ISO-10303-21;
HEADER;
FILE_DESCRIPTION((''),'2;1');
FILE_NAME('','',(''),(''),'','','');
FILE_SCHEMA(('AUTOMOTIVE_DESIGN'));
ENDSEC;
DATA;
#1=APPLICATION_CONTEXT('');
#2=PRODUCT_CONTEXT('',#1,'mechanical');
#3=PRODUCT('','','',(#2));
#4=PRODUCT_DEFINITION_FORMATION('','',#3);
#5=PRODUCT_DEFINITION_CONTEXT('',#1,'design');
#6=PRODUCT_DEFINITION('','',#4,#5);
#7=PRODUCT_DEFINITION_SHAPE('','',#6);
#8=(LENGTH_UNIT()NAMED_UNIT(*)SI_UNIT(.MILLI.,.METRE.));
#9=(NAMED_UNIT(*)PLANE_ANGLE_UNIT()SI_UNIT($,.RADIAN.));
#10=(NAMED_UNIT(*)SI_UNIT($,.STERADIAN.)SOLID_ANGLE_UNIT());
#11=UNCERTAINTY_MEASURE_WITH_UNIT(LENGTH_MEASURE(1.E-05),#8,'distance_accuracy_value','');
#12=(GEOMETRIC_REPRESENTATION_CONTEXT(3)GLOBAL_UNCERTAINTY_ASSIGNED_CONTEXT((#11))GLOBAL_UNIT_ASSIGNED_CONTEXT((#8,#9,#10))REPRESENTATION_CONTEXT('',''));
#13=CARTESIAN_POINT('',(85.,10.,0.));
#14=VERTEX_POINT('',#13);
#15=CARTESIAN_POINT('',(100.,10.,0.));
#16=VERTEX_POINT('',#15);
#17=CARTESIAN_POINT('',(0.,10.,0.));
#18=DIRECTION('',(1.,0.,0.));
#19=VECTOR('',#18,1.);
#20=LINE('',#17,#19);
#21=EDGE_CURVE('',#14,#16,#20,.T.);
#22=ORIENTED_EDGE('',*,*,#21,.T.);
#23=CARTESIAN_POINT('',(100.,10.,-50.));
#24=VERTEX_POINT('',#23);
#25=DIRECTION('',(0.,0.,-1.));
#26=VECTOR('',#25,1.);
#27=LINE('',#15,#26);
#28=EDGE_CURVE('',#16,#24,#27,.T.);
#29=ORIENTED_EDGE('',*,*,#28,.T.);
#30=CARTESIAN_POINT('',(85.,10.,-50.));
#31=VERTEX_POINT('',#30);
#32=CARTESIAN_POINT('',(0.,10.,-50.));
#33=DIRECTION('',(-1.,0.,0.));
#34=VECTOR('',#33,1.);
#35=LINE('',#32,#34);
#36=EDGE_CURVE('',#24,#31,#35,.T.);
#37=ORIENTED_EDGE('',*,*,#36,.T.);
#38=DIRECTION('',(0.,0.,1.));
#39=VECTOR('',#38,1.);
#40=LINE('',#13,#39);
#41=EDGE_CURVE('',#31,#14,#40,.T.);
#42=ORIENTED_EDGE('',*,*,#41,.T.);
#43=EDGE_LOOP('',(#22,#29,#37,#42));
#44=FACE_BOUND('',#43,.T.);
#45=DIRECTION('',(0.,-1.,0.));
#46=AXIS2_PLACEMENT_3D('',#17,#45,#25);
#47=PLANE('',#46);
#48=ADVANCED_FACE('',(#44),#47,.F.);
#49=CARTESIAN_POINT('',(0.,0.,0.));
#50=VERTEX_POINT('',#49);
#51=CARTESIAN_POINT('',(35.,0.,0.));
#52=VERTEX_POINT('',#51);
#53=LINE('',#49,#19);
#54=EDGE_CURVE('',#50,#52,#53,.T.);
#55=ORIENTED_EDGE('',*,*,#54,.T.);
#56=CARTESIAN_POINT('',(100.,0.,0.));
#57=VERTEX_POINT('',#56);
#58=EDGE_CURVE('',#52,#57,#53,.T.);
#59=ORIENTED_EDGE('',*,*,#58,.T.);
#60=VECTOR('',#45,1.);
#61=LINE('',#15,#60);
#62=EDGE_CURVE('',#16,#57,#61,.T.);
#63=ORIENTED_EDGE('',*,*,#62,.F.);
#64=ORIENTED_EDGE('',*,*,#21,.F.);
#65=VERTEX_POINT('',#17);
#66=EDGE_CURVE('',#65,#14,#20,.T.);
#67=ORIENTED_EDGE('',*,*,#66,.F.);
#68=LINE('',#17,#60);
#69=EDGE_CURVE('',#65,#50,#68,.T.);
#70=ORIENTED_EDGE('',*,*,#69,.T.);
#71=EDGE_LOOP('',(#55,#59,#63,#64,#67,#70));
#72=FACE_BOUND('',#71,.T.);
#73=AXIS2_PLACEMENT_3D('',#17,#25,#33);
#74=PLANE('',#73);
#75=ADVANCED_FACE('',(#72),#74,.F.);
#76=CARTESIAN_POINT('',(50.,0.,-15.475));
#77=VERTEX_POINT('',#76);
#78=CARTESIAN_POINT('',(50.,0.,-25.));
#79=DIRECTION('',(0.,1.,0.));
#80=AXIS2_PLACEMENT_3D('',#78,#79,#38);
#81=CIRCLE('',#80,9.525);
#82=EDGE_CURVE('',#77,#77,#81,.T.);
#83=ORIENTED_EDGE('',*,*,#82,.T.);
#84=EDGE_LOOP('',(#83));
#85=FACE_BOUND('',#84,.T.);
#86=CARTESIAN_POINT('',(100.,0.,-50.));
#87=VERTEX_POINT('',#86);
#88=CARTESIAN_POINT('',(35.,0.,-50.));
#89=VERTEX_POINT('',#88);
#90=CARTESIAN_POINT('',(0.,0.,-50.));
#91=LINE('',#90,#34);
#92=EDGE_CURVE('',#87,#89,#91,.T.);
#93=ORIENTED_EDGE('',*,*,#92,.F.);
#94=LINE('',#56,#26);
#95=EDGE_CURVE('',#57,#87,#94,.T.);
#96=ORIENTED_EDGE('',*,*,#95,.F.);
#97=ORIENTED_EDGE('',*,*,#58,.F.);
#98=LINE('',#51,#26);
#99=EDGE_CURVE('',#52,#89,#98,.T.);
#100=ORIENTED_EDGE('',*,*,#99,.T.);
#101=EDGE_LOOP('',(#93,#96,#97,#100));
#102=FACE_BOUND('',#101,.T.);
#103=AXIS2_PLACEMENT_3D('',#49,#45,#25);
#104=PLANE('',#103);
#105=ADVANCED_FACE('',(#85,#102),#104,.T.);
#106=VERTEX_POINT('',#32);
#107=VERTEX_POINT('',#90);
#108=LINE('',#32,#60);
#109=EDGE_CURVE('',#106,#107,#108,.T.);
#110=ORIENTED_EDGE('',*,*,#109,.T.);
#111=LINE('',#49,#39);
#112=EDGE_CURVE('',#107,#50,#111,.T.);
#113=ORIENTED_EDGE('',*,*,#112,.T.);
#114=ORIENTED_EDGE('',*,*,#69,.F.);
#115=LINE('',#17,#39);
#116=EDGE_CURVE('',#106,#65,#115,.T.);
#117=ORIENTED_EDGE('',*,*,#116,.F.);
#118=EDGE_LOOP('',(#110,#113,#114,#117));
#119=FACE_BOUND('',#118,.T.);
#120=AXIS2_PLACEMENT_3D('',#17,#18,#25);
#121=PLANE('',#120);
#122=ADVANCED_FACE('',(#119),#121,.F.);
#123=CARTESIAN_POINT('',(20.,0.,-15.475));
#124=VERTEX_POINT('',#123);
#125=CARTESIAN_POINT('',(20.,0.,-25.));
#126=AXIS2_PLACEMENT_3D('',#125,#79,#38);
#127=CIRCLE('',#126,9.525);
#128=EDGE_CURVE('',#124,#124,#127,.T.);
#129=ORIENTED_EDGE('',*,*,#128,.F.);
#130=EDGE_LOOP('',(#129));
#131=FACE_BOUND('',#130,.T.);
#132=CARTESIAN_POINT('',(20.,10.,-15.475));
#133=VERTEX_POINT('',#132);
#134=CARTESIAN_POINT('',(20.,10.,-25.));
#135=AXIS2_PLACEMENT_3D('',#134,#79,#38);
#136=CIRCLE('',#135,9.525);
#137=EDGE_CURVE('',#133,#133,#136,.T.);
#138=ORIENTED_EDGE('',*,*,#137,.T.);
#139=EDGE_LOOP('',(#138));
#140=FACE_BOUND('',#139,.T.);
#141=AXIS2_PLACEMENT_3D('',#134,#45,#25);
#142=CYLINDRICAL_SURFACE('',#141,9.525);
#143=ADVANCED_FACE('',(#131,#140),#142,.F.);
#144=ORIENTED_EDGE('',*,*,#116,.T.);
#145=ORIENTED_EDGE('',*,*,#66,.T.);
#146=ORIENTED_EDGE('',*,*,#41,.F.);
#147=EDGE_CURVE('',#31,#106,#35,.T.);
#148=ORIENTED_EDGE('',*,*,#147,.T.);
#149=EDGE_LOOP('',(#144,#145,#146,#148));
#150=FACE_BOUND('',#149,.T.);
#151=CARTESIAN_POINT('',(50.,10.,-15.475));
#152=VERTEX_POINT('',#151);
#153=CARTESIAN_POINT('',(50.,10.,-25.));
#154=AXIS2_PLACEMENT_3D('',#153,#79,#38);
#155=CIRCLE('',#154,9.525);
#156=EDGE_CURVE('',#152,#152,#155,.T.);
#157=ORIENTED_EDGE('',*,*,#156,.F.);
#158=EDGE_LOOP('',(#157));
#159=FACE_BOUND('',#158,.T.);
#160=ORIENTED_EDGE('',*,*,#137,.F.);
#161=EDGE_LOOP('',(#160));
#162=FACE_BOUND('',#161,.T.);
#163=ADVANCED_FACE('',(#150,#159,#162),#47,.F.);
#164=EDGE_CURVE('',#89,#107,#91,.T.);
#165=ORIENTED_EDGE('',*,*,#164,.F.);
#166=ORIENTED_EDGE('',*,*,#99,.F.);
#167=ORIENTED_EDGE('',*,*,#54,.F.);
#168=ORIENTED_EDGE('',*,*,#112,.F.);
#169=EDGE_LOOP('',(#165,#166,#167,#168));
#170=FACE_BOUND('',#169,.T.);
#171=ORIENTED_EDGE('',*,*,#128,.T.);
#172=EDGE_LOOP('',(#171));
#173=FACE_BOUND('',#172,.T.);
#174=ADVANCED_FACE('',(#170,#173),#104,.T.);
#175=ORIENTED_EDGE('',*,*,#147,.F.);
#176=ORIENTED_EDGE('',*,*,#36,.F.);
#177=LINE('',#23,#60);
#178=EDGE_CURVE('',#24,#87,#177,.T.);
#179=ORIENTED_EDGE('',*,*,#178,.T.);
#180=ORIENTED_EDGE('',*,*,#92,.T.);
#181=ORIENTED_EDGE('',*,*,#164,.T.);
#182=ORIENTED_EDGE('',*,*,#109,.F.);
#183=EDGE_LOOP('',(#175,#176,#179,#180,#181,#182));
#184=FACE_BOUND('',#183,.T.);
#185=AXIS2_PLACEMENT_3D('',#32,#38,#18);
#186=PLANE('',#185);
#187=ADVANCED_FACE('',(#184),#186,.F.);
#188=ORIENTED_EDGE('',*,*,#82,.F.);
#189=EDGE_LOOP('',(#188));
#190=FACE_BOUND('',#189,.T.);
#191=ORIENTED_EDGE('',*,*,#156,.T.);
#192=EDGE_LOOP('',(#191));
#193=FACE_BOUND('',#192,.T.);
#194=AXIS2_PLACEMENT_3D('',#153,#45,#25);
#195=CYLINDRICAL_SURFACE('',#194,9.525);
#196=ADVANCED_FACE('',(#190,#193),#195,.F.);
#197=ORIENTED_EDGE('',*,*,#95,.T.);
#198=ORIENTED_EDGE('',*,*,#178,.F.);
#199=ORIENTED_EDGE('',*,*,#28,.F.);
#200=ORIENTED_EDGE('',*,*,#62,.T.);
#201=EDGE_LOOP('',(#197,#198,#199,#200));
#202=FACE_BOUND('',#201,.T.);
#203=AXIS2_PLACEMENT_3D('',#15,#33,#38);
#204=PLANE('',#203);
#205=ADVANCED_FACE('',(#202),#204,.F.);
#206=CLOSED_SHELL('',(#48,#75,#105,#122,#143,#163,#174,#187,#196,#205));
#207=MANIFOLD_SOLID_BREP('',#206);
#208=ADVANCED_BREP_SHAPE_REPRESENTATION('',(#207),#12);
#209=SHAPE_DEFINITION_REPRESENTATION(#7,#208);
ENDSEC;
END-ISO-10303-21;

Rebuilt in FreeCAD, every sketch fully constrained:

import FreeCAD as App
import Part
import Sketcher
from FreeCAD import Vector
Q = App.Units.Quantity

doc = App.newDocument("Part")
params = doc.addObject("Spreadsheet::Sheet", "Params")
for row, (alias, value) in enumerate([
    ("sketch1_diameter", "19.05 mm"),
    ("sketch1_width", "100 mm"),
    ("sketch1_height", "50 mm"),
    ("pad1_length", "10 mm"),
], start=1):
    params.set(f"A{row}", alias)
    params.set(f"B{row}", "=" + value)
    params.setAlias(f"B{row}", alias)

body = doc.addObject("PartDesign::Body", "Body")

sketch1 = body.newObject("Sketcher::SketchObject", "Sketch")
sketch1.AttachmentSupport = (doc.getObject("XZ_Plane"), [""])
sketch1.MapMode = "FlatFace"
sketch1.addGeometry([
    Part.LineSegment(Vector(0, -50, 0), Vector(0, 0, 0)),
    Part.LineSegment(Vector(0, 0, 0), Vector(100, 0, 0)),
    Part.LineSegment(Vector(100, 0, 0), Vector(100, -50, 0)),
    Part.LineSegment(Vector(100, -50, 0), Vector(0, -50, 0)),
    Part.Circle(Vector(20, -25, 0), Vector(0, 0, 1), 10),
    Part.Circle(Vector(50, -25, 0), Vector(0, 0, 1), 10),
], False)
sketch1.addConstraint([
    Sketcher.Constraint("Coincident", 0, 2, 1, 1),
    Sketcher.Constraint("Coincident", 1, 2, 2, 1),
    Sketcher.Constraint("Coincident", 2, 2, 3, 1),
    Sketcher.Constraint("Coincident", 3, 2, 0, 1),
    Sketcher.Constraint("Vertical", 0),
    Sketcher.Constraint("Horizontal", 1),
    Sketcher.Constraint("Vertical", 2),
    Sketcher.Constraint("Horizontal", 3),
    Sketcher.Constraint("Coincident", 0, 2, -1, 1),
    Sketcher.Constraint("Equal", 4, 5),
    Sketcher.Constraint("Horizontal", 4, 3, 5, 3),
    Sketcher.Constraint("Diameter", 4, Q("19.05 mm")),
    Sketcher.Constraint("DistanceX", 1, 1, 1, 2, Q("100 mm")),
    Sketcher.Constraint("DistanceY", 0, 1, 0, 2, Q("50 mm")),
    Sketcher.Constraint("DistanceX", -1, 1, 4, 3, Q("20 mm")),
    Sketcher.Constraint("DistanceY", 4, 3, -1, 1, Q("25 mm")),
    Sketcher.Constraint("DistanceX", -1, 1, 5, 3, Q("50 mm")),
])
sketch1.setExpression("Constraints[11]", "Params.sketch1_diameter")
sketch1.setExpression("Constraints[12]", "Params.sketch1_width")
sketch1.setExpression("Constraints[13]", "Params.sketch1_height")
pad1 = body.newObject("PartDesign::Pad", "Pad")
pad1.Profile = sketch1
pad1.setExpression("Length", "Params.pad1_length")
pad1.Reversed = True

doc.recompute()
